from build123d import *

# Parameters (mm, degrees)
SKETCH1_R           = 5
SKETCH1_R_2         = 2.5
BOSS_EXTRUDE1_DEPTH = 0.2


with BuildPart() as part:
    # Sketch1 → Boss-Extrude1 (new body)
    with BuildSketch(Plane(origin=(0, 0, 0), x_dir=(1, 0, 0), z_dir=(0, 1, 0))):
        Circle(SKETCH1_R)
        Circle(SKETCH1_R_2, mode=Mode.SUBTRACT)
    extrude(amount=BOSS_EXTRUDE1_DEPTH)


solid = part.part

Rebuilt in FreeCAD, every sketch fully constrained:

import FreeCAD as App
import Part
import Sketcher
Q = App.Units.Quantity

doc = App.newDocument("Part")
body = doc.addObject("PartDesign::Body", "Body")

# Sketch on XZ plane
sketch1 = body.newObject("Sketcher::SketchObject", "Sketch")
sketch1.AttachmentSupport = (doc.getObject("XZ_Plane"), [""])
sketch1.MapMode = "FlatFace"
sketch1.addGeometry(Part.Circle(App.Vector(0, 0, 0), App.Vector(0, 0, 1), 5), False)
sketch1.addGeometry(Part.Circle(App.Vector(0, 0, 0), App.Vector(0, 0, 1), 2.5), False)
sketch1.addConstraint(Sketcher.Constraint("Coincident", 0, 3, -1, 1))
sketch1.addConstraint(Sketcher.Constraint("Coincident", 1, 3, -1, 1))
sketch1.addConstraint(Sketcher.Constraint("Diameter", 0, Q("10 mm")))
sketch1.addConstraint(Sketcher.Constraint("Diameter", 1, Q("5 mm")))
pad1 = body.newObject("PartDesign::Pad", "Pad")
pad1.Profile = sketch1
pad1.Length = 0.2
pad1.Reversed = True

doc.recompute()
